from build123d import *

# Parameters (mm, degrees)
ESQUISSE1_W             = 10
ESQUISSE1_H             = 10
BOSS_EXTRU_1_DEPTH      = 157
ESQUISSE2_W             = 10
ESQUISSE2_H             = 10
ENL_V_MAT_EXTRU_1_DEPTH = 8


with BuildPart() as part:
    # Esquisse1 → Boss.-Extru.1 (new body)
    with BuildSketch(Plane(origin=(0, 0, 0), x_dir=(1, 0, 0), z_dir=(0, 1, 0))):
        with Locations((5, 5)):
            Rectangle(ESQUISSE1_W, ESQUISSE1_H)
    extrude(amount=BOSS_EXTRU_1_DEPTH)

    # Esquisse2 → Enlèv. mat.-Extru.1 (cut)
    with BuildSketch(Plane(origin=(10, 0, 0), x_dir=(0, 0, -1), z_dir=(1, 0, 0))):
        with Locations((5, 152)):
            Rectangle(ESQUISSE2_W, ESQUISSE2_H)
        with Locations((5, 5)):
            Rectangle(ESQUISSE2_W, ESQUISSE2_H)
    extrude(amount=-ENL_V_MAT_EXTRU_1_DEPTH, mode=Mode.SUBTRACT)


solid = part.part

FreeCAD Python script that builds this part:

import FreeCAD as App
import Part
import Sketcher

V = App.Vector
Q = App.Units.Quantity

doc = App.newDocument("Part")
body = doc.addObject("PartDesign::Body", "Body")

sketch1 = doc.addObject("Sketcher::SketchObject", "Sketch")
body.addObject(sketch1)
sketch1.AttachmentSupport = (doc.XZ_Plane, [""])
sketch1.MapMode = "FlatFace"
sketch1.addGeometry([
    Part.LineSegment(V(0, -10, 0), V(0, 0, 0)),
    Part.LineSegment(V(0, 0, 0), V(10, 0, 0)),
    Part.LineSegment(V(10, 0, 0), V(10, -10, 0)),
    Part.LineSegment(V(10, -10, 0), V(0, -10, 0)),
], False)
sketch1.addConstraint([
    Sketcher.Constraint("Coincident", 0, 2, 1, 1),
    Sketcher.Constraint("Coincident", 1, 2, 2, 1),
    Sketcher.Constraint("Coincident", 2, 2, 3, 1),
    Sketcher.Constraint("Coincident", 3, 2, 0, 1),
    Sketcher.Constraint("Vertical", 0),
    Sketcher.Constraint("Horizontal", 1),
    Sketcher.Constraint("Vertical", 2),
    Sketcher.Constraint("Horizontal", 3),
    Sketcher.Constraint("Coincident", 0, 2, -1, 1),
    Sketcher.Constraint("Equal", 3, 0),
    Sketcher.Constraint("DistanceX", 1, 1, 1, 2, Q("10 mm")),
])
pad1 = doc.addObject("PartDesign::Pad", "Pad")
body.addObject(pad1)
pad1.Profile = sketch1
pad1.Length = 157
pad1.Reversed = True

sketch2 = doc.addObject("Sketcher::SketchObject", "Sketch001")
body.addObject(sketch2)
sketch2.AttachmentSupport = (doc.YZ_Plane, [""])
sketch2.MapMode = "FlatFace"
sketch2.AttachmentOffset = App.Placement(V(0, 0, 10), App.Rotation())
sketch2.addGeometry([
    Part.LineSegment(V(157, 0, 0), V(147, 0, 0)),
    Part.LineSegment(V(147, 0, 0), V(147, -10, 0)),
    Part.LineSegment(V(147, -10, 0), V(157, -10, 0)),
    Part.LineSegment(V(157, -10, 0), V(157, 0, 0)),
    Part.LineSegment(V(10, 0, 0), V(0, 0, 0)),
    Part.LineSegment(V(0, 0, 0), V(0, -10, 0)),
    Part.LineSegment(V(0, -10, 0), V(10, -10, 0)),
    Part.LineSegment(V(10, -10, 0), V(10, 0, 0)),
], False)
sketch2.addConstraint([
    Sketcher.Constraint("Coincident", 0, 2, 1, 1),
    Sketcher.Constraint("Coincident", 1, 2, 2, 1),
    Sketcher.Constraint("Coincident", 2, 2, 3, 1),
    Sketcher.Constraint("Coincident", 3, 2, 0, 1),
    Sketcher.Constraint("Coincident", 4, 2, 5, 1),
    Sketcher.Constraint("Coincident", 5, 2, 6, 1),
    Sketcher.Constraint("Coincident", 6, 2, 7, 1),
    Sketcher.Constraint("Coincident", 7, 2, 4, 1),
    Sketcher.Constraint("Horizontal", 0),
    Sketcher.Constraint("Vertical", 1),
    Sketcher.Constraint("Horizontal", 2),
    Sketcher.Constraint("Vertical", 3),
    Sketcher.Constraint("Horizontal", 4),
    Sketcher.Constraint("Vertical", 5),
    Sketcher.Constraint("Horizontal", 6),
    Sketcher.Constraint("Vertical", 7),
    Sketcher.Constraint("Coincident", 4, 2, -1, 1),
    Sketcher.Constraint("PointOnObject", 0, 2, -1),
    Sketcher.Constraint("Horizontal", 2, 2, 5, 2),
    Sketcher.Constraint("Equal", 2, 4),
    Sketcher.Constraint("Equal", 6, 1),
    Sketcher.Constraint("DistanceX", 0, 2, 0, 1, Q("10 mm")),
    Sketcher.Constraint("DistanceX", -1, 1, 0, 2, Q("147 mm")),
])
pocket1 = doc.addObject("PartDesign::Pocket", "Pocket")
body.addObject(pocket1)
pocket1.Profile = sketch2
pocket1.Length = 8

doc.recompute()
